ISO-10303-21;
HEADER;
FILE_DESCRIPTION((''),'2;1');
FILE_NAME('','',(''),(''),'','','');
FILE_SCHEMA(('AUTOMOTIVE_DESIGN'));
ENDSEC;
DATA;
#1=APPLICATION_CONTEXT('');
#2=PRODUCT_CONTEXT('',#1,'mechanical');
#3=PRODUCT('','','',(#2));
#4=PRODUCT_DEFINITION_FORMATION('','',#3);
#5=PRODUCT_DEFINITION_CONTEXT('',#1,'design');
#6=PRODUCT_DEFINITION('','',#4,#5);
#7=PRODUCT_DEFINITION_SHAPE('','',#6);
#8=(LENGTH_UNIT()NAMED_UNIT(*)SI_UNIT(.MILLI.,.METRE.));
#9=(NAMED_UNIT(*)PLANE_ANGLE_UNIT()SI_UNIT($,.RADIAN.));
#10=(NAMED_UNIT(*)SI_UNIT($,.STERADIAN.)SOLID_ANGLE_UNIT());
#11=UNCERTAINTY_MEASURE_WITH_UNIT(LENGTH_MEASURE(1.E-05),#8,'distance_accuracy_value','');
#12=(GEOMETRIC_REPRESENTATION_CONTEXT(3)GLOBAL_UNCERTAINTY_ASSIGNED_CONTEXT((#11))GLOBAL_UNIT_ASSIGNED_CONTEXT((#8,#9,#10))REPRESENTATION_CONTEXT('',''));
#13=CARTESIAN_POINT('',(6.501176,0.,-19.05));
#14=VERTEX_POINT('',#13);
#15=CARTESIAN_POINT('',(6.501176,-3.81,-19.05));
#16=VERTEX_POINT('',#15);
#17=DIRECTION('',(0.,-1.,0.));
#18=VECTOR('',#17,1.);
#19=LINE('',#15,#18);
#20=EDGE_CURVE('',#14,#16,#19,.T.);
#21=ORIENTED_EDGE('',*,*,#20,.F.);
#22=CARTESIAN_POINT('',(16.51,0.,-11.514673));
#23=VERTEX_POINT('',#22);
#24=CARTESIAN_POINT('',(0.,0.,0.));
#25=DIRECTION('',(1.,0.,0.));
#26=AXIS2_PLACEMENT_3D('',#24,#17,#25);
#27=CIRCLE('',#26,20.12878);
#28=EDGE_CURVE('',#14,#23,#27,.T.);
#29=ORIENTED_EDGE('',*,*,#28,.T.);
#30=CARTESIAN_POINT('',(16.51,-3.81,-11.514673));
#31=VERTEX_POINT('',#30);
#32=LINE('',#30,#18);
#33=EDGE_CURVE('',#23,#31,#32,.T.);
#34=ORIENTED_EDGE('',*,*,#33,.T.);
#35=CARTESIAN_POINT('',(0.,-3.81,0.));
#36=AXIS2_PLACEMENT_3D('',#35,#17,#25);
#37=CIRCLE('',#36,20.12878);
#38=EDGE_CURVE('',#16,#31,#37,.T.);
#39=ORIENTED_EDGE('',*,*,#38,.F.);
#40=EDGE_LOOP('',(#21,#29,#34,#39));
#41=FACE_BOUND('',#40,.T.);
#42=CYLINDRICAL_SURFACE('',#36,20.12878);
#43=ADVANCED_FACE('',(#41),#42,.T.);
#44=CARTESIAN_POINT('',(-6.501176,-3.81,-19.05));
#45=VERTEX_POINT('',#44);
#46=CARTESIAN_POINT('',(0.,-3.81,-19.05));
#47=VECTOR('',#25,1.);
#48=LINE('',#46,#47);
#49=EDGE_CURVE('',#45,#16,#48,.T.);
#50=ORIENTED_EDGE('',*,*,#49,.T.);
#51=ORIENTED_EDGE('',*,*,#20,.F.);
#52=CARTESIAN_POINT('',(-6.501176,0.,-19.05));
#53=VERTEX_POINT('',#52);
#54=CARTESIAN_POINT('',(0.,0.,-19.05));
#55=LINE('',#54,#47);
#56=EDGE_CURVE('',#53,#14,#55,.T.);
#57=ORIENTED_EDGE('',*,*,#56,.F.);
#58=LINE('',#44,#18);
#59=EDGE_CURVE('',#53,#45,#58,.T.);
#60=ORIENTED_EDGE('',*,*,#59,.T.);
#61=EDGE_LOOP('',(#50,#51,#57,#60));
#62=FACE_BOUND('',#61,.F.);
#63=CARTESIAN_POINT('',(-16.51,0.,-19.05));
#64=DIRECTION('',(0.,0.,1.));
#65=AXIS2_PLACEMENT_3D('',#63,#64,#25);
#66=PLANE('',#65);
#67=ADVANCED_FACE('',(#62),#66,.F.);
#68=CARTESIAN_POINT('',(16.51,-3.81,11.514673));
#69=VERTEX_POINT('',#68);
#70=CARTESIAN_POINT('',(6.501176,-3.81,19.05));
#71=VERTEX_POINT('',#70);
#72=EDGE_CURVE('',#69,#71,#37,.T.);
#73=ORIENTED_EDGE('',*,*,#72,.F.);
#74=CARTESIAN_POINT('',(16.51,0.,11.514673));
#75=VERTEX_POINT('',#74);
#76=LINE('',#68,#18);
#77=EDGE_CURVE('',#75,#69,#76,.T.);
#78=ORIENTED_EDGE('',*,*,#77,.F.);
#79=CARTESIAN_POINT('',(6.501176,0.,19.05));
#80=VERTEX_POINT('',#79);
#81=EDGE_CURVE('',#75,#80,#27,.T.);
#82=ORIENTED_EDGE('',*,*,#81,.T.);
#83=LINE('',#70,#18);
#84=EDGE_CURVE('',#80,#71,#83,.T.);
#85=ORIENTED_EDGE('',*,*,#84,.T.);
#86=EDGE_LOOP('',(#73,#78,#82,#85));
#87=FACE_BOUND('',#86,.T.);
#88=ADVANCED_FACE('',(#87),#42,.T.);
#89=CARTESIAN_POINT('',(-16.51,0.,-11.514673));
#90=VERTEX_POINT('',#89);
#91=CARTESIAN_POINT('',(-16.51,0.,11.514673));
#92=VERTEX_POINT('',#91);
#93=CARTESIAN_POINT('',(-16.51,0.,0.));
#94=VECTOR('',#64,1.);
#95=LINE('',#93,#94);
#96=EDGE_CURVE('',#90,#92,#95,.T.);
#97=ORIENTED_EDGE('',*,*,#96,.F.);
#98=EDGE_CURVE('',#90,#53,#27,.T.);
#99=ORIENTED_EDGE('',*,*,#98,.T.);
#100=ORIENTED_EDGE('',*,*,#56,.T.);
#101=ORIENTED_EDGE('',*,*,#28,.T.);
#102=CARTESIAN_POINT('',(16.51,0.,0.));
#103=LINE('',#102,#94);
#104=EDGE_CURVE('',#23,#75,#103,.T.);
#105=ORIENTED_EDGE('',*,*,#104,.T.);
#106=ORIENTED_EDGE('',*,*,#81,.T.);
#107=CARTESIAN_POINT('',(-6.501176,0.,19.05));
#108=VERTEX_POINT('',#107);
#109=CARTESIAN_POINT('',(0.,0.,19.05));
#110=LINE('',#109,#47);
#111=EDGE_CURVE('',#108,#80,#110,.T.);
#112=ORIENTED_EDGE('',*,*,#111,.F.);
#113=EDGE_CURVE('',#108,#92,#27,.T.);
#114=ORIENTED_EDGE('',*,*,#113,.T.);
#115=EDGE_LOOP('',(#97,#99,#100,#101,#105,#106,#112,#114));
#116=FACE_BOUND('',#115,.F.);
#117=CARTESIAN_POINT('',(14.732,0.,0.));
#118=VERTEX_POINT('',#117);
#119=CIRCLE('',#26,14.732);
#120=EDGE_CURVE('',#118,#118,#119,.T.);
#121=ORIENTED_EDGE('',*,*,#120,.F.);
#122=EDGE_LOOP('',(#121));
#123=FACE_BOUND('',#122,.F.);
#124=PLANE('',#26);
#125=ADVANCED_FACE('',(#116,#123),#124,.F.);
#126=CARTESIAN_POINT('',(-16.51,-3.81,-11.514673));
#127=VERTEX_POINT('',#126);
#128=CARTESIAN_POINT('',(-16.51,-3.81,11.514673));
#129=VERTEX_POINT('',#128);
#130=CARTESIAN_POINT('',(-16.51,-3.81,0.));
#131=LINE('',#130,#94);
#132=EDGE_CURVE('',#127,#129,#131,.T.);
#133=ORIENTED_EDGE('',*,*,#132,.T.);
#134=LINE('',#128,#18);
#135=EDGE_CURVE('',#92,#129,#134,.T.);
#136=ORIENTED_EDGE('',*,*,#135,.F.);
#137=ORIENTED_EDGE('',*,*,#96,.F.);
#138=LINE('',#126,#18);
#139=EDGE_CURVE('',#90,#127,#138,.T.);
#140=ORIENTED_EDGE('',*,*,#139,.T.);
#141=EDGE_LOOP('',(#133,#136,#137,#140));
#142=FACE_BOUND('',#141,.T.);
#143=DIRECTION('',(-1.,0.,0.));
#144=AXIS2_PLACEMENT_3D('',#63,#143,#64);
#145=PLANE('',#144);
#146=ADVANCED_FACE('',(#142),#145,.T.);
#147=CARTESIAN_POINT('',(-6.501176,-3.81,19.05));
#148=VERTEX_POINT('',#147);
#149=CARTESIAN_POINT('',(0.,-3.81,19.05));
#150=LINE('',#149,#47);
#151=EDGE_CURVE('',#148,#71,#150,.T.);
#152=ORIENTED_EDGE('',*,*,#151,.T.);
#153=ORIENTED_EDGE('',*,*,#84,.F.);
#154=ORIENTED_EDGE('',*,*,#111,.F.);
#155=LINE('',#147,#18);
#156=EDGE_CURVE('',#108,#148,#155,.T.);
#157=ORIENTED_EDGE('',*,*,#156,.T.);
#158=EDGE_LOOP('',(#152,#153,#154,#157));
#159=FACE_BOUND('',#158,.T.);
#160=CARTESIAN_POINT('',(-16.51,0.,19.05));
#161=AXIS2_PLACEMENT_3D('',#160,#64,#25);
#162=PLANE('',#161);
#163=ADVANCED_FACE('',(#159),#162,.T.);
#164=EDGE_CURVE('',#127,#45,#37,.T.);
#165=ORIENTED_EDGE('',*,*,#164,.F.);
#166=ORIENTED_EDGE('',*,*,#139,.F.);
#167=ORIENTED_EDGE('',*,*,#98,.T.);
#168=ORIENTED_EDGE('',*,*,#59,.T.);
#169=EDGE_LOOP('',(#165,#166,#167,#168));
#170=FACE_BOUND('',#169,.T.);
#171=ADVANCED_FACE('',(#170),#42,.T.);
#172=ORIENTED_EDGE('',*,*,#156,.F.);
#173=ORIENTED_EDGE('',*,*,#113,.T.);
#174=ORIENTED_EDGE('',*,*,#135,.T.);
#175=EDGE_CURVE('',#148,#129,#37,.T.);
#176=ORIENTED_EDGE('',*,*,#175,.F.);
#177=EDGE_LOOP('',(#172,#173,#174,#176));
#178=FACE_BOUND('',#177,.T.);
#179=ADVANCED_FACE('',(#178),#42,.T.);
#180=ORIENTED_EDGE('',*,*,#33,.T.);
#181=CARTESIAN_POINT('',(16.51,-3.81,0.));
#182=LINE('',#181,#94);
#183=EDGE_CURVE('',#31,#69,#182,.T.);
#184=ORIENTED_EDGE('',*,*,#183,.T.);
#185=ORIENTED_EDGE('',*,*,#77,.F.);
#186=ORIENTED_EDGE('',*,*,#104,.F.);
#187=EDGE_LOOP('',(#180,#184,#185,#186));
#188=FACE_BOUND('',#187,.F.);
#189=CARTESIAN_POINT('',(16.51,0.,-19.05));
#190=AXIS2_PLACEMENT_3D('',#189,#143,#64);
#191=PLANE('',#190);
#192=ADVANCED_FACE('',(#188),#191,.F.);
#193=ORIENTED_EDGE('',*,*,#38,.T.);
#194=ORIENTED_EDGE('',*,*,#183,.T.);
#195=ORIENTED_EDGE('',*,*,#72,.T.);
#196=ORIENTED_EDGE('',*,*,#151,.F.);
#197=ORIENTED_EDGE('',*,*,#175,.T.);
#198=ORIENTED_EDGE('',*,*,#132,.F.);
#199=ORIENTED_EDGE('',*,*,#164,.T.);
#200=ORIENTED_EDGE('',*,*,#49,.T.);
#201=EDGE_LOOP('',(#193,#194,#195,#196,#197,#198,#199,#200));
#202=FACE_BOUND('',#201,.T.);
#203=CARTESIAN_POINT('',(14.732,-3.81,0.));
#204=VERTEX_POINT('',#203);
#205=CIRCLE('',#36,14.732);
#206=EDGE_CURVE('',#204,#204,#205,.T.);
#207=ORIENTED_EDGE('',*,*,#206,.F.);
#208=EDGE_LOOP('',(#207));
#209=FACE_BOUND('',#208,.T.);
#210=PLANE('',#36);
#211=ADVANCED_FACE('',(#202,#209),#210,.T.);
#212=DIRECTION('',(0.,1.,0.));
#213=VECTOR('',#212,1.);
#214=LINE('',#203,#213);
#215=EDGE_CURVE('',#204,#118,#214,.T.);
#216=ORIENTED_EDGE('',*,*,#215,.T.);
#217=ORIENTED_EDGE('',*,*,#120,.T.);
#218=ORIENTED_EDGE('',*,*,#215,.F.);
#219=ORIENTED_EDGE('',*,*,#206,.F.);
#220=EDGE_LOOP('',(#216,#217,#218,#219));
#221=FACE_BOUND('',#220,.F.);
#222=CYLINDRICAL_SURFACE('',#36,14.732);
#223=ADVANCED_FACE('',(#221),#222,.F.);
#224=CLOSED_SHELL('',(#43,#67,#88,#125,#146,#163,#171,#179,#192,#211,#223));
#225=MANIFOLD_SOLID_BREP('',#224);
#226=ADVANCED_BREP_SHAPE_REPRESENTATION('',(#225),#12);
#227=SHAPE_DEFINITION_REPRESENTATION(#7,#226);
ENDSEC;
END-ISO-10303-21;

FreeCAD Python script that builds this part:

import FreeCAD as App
import Part
import Sketcher
Q = App.Units.Quantity

doc = App.newDocument("Part")
body = doc.addObject("PartDesign::Body", "Body")

# Sketch on XZ plane
sketch1 = doc.addObject("Sketcher::SketchObject", "Sketch")
body.addObject(sketch1)
sketch1.AttachmentSupport = (doc.XZ_Plane, [""])
sketch1.MapMode = "FlatFace"
sketch1.addGeometry(Part.LineSegment(App.Vector(-17, 19, 0), App.Vector(-17, -19, 0)), False)
sketch1.addGeometry(Part.LineSegment(App.Vector(-17, -19, 0), App.Vector(17, -19, 0)), False)
sketch1.addGeometry(Part.LineSegment(App.Vector(17, -19, 0), App.Vector(17, 19, 0)), False)
sketch1.addGeometry(Part.LineSegment(App.Vector(17, 19, 0), App.Vector(-17, 19, 0)), False)
sketch1.addConstraint(Sketcher.Constraint("Coincident", 0, 2, 1, 1))
sketch1.addConstraint(Sketcher.Constraint("Coincident", 1, 2, 2, 1))
sketch1.addConstraint(Sketcher.Constraint("Coincident", 2, 2, 3, 1))
sketch1.addConstraint(Sketcher.Constraint("Coincident", 3, 2, 0, 1))
sketch1.addConstraint(Sketcher.Constraint("Vertical", 0))
sketch1.addConstraint(Sketcher.Constraint("Horizontal", 1))
sketch1.addConstraint(Sketcher.Constraint("Vertical", 2))
sketch1.addConstraint(Sketcher.Constraint("Horizontal", 3))
sketch1.addConstraint(Sketcher.Constraint("Symmetric", 0, 2, 2, 2, -1, 1))
sketch1.addConstraint(Sketcher.Constraint("DistanceX", 1, 1, 1, 2, Q("1.3 in")))
sketch1.addConstraint(Sketcher.Constraint("DistanceY", 0, 2, 0, 1, Q("1.5 in")))
pad1 = doc.addObject("PartDesign::Pad", "Pad")
body.addObject(pad1)
pad1.Profile = sketch1
pad1.Length = Q("0.15 in")

# Sketch on XZ plane
sketch2 = doc.addObject("Sketcher::SketchObject", "Sketch001")
body.addObject(sketch2)
sketch2.AttachmentSupport = (doc.XZ_Plane, [""])
sketch2.MapMode = "FlatFace"
sketch2.AttachmentOffset = App.Placement(App.Vector(0, 0, 0.15 * 25.4), App.Rotation())
sketch2.addGeometry(Part.Circle(App.Vector(0, 0, 0), App.Vector(0, 0, 1), 25), False)
sketch2.addGeometry(Part.Circle(App.Vector(0, 0, 0), App.Vector(0, 0, 1), 20), False)
sketch2.addConstraint(Sketcher.Constraint("Coincident", 0, 3, -1, 1))
sketch2.addConstraint(Sketcher.Constraint("Coincident", 1, 3, -1, 1))
sketch2.addConstraint(Sketcher.Constraint("Diameter", 0, Q("50.41756 mm")))
sketch2.addConstraint(Sketcher.Constraint("Diameter", 1, Q("40.25756 mm")))
pocket1 = doc.addObject("PartDesign::Pocket", "Pocket")
body.addObject(pocket1)
pocket1.Profile = sketch2
pocket1.Length = Q("1 in")

# Sketch on XZ plane
sketch3 = doc.addObject("Sketcher::SketchObject", "Sketch002")
body.addObject(sketch3)
sketch3.AttachmentSupport = (doc.XZ_Plane, [""])
sketch3.MapMode = "FlatFace"
sketch3.AttachmentOffset = App.Placement(App.Vector(0, 0, 0.15 * 25.4), App.Rotation())
sketch3.addGeometry(Part.Circle(App.Vector(0, 0, 0), App.Vector(0, 0, 1), 15), False)
sketch3.addConstraint(Sketcher.Constraint("Coincident", 0, 3, -1, 1))
sketch3.addConstraint(Sketcher.Constraint("Diameter", 0, Q("1.16 in")))
pocket2 = doc.addObject("PartDesign::Pocket", "Pocket001")
body.addObject(pocket2)
pocket2.Profile = sketch3
pocket2.Length = Q("1 in")

doc.recompute()
